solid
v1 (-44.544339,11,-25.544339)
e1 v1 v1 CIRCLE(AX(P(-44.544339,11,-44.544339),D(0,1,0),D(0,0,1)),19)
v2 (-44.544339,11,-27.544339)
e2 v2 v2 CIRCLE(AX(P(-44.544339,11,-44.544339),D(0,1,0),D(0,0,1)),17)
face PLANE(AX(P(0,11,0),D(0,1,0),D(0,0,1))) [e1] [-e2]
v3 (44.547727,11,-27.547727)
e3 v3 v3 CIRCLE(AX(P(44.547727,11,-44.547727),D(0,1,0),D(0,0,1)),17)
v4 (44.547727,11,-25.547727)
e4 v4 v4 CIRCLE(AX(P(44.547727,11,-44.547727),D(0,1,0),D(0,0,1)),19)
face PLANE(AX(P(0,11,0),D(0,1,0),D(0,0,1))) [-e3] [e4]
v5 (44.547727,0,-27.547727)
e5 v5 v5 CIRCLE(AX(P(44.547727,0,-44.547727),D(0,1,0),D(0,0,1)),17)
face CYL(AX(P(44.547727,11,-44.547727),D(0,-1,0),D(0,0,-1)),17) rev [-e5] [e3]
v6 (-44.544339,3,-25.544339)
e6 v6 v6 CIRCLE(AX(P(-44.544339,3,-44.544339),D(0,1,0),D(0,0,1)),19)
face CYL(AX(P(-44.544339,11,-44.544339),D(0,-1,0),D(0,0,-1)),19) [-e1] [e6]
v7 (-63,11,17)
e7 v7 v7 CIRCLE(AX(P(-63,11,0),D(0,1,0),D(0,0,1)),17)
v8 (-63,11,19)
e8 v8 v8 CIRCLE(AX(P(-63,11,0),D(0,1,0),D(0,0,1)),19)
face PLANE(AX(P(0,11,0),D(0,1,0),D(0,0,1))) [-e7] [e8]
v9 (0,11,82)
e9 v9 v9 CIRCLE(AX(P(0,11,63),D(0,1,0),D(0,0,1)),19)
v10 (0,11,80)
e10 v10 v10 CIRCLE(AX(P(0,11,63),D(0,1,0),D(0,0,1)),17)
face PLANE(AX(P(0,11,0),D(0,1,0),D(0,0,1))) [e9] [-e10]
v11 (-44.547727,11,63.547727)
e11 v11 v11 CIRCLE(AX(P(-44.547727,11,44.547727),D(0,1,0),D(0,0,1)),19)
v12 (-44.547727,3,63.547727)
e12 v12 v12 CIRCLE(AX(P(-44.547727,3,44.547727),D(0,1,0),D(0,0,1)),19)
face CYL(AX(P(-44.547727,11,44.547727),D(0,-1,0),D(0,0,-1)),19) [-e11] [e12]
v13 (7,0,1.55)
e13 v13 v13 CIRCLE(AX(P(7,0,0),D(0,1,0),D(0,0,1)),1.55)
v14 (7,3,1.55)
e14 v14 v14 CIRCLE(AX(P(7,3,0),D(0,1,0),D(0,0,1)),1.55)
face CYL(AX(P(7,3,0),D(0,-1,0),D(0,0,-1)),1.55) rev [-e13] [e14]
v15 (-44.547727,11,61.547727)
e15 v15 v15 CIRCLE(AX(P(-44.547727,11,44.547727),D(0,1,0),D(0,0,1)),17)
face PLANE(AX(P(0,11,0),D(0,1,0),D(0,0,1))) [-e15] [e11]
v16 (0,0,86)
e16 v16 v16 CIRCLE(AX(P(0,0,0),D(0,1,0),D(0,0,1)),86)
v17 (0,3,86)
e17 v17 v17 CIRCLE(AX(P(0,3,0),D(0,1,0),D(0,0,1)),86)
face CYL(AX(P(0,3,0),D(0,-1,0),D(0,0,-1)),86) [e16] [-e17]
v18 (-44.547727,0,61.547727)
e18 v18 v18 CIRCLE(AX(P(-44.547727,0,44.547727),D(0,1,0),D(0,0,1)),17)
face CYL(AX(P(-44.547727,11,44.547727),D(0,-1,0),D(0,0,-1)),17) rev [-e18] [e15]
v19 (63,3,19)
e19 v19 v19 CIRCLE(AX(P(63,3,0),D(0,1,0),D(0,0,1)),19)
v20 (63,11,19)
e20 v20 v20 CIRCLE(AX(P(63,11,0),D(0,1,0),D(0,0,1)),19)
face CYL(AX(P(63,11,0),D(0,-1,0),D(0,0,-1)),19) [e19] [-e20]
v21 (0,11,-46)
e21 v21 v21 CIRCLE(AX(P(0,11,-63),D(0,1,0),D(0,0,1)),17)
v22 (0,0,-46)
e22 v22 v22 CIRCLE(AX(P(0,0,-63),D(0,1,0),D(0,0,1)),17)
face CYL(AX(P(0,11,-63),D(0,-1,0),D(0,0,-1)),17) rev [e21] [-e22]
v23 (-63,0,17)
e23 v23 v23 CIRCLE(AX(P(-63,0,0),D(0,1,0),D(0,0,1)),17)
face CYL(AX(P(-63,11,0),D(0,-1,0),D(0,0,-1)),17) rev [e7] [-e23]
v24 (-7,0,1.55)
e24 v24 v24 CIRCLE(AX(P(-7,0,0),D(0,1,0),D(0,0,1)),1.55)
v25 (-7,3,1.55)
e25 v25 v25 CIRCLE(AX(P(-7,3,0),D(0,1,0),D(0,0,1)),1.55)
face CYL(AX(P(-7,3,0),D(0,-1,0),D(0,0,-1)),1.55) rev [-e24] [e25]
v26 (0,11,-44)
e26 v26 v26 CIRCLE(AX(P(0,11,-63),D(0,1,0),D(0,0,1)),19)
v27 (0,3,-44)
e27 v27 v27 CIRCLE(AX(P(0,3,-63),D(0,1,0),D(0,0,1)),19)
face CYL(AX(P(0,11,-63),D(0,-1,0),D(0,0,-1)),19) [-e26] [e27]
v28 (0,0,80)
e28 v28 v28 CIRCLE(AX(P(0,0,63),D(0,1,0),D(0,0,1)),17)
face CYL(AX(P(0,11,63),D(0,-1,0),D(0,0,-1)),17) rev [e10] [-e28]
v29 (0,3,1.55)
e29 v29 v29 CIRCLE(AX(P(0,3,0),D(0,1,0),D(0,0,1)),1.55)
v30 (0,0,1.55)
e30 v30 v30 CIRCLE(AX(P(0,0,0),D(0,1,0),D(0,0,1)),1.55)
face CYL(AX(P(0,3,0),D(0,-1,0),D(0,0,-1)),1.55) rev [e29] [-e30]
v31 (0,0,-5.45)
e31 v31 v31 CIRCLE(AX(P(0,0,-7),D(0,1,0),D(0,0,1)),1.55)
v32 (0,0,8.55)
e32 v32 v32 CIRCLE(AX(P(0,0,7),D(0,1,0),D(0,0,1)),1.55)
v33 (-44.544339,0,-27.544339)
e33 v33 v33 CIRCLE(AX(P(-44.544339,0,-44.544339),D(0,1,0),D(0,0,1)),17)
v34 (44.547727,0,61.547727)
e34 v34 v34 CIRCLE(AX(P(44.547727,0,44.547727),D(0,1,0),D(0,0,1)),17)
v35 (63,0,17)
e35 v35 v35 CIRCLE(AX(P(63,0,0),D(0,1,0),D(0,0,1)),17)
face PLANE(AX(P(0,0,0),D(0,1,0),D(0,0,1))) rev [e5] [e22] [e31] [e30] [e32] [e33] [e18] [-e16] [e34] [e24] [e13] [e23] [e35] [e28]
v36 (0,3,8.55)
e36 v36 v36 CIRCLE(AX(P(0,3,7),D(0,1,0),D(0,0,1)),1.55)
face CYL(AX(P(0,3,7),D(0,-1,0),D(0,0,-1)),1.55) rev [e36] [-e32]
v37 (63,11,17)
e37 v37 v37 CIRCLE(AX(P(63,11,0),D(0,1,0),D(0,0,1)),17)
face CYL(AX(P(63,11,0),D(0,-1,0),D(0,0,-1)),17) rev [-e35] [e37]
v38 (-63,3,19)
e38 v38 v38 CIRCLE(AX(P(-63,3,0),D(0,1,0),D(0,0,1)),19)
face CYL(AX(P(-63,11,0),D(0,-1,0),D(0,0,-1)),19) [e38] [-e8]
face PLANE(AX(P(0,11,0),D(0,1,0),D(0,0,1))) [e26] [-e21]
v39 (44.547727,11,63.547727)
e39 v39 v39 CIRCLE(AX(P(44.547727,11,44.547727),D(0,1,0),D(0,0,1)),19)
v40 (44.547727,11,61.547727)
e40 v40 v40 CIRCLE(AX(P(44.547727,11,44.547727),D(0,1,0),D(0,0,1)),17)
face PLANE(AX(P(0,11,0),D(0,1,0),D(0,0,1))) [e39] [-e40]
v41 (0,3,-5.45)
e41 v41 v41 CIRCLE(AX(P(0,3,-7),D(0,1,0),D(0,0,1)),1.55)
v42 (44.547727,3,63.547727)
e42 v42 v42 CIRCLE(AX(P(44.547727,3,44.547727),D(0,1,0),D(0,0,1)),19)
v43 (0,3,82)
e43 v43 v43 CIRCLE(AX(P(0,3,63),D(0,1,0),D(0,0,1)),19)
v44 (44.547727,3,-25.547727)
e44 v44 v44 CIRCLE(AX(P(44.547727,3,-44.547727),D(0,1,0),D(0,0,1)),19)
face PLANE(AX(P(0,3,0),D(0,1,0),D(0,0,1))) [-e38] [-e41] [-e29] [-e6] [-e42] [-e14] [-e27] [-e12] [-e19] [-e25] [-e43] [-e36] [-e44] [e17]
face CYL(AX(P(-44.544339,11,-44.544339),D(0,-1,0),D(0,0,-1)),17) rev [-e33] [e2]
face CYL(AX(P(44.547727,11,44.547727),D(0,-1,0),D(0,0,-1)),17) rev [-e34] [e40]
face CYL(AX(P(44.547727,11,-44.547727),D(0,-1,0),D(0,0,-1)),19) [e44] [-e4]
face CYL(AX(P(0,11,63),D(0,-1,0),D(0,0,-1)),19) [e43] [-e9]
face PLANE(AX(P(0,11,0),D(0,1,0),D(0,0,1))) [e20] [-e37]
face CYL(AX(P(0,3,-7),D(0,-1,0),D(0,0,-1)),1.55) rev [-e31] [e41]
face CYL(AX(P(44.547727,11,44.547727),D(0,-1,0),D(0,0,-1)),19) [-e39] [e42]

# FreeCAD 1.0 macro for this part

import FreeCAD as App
import Part
import Sketcher

V = App.Vector

doc = App.newDocument("Part")
params = doc.addObject("Spreadsheet::Sheet", "Params")
for row, (alias, value) in enumerate([
    ("sketch1_diameter", "38 mm"),
    ("sketch1_diameter2", "34 mm"),
    ("pad1_length", "11 mm"),
    ("sketch2_diameter", "38 mm"),
    ("sketch2_diameter2", "34 mm"),
    ("pad2_length", "11 mm"),
    ("sketch3_diameter", "38 mm"),
    ("sketch3_diameter2", "34 mm"),
    ("pad3_length", "11 mm"),
    ("sketch4_diameter", "38 mm"),
    ("sketch4_diameter2", "34 mm"),
    ("pad4_length", "11 mm"),
    ("sketch5_diameter", "38 mm"),
    ("sketch5_diameter2", "34 mm"),
    ("pad5_length", "11 mm"),
    ("sketch6_diameter", "38 mm"),
    ("sketch6_diameter2", "34 mm"),
    ("pad6_length", "11 mm"),
    ("sketch7_diameter", "38 mm"),
    ("sketch7_diameter2", "34 mm"),
    ("pad7_length", "11 mm"),
    ("sketch8_diameter", "38 mm"),
    ("sketch8_diameter2", "34 mm"),
    ("pad8_length", "11 mm"),
    ("sketch9_diameter", "172 mm"),
    ("sketch9_diameter2", "38 mm"),
    ("sketch9_diameter3", "3.1 mm"),
    ("pad9_length", "3 mm"),
], start=1):
    params.set(f"A{row}", alias)
    params.set(f"B{row}", "=" + value)
    params.setAlias(f"B{row}", alias)

body = doc.addObject("PartDesign::Body", "Body")

# Sketch on XZ plane
sketch1 = body.newObject("Sketcher::SketchObject", "Sketch")
sketch1.AttachmentSupport = (doc.getObject("XZ_Plane"), [""])
sketch1.MapMode = "FlatFace"
sketch1.addGeometry(Part.Circle(V(-63, 0, 0), V(0, 0, 1), 19), False)
sketch1.addGeometry(Part.Circle(V(-63, 0, 0), V(0, 0, 1), 17), False)
sketch1.addConstraint(Sketcher.Constraint("Coincident", 1, 3, 0, 3))
sketch1.addConstraint(Sketcher.Constraint("PointOnObject", 0, 3, -1))
sketch1.addConstraint(Sketcher.Constraint("Diameter", 0, 38.0))
sketch1.addConstraint(Sketcher.Constraint("Diameter", 1, 34.0))
sketch1.addConstraint(Sketcher.Constraint("DistanceX", 0, 3, -1, 1, 63.0))
sketch1.setExpression("Constraints[2]", "Params.sketch1_diameter")
sketch1.setExpression("Constraints[3]", "Params.sketch1_diameter2")
pad1 = body.newObject("PartDesign::Pad", "Pad")
pad1.Profile = sketch1
pad1.setExpression("Length", "Params.pad1_length")
pad1.Reversed = True
body2 = doc.addObject("PartDesign::Body", "Body001")

# Sketch on XZ plane
sketch2 = body2.newObject("Sketcher::SketchObject", "Sketch001")
sketch2.AttachmentSupport = (doc.getObject("XZ_Plane001"), [""])
sketch2.MapMode = "FlatFace"
sketch2.addGeometry(Part.Circle(V(-44.547727, 44.547727, 0), V(0, 0, 1), 19), False)
sketch2.addGeometry(Part.Circle(V(-44.547727, 44.547727, 0), V(0, 0, 1), 17), False)
sketch2.addConstraint(Sketcher.Constraint("Coincident", 1, 3, 0, 3))
sketch2.addConstraint(Sketcher.Constraint("Diameter", 0, 38.0))
sketch2.addConstraint(Sketcher.Constraint("Diameter", 1, 34.0))
sketch2.addConstraint(Sketcher.Constraint("DistanceX", 0, 3, -1, 1, 44.547727))
sketch2.addConstraint(Sketcher.Constraint("DistanceY", -1, 1, 0, 3, 44.547727))
sketch2.setExpression("Constraints[1]", "Params.sketch2_diameter")
sketch2.setExpression("Constraints[2]", "Params.sketch2_diameter2")
pad2 = body2.newObject("PartDesign::Pad", "Pad001")
pad2.Profile = sketch2
pad2.setExpression("Length", "Params.pad2_length")
pad2.Reversed = True
body3 = doc.addObject("PartDesign::Body", "Body002")

# Sketch on XZ plane
sketch3 = body3.newObject("Sketcher::SketchObject", "Sketch002")
sketch3.AttachmentSupport = (doc.getObject("XZ_Plane002"), [""])
sketch3.MapMode = "FlatFace"
sketch3.addGeometry(Part.Circle(V(0, 63, 0), V(0, 0, 1), 19), False)
sketch3.addGeometry(Part.Circle(V(0, 63, 0), V(0, 0, 1), 17), False)
sketch3.addConstraint(Sketcher.Constraint("Coincident", 1, 3, 0, 3))
sketch3.addConstraint(Sketcher.Constraint("PointOnObject", 0, 3, -2))
sketch3.addConstraint(Sketcher.Constraint("Diameter", 0, 38.0))
sketch3.addConstraint(Sketcher.Constraint("Diameter", 1, 34.0))
sketch3.addConstraint(Sketcher.Constraint("DistanceY", -1, 1, 0, 3, 63.0))
sketch3.setExpression("Constraints[2]", "Params.sketch3_diameter")
sketch3.setExpression("Constraints[3]", "Params.sketch3_diameter2")
pad3 = body3.newObject("PartDesign::Pad", "Pad002")
pad3.Profile = sketch3
pad3.setExpression("Length", "Params.pad3_length")
pad3.Reversed = True
body4 = doc.addObject("PartDesign::Body", "Body003")

# Sketch on XZ plane
sketch4 = body4.newObject("Sketcher::SketchObject", "Sketch003")
sketch4.AttachmentSupport = (doc.getObject("XZ_Plane003"), [""])
sketch4.MapMode = "FlatFace"
sketch4.addGeometry(Part.Circle(V(44.547727, 44.547727, 0), V(0, 0, 1), 19), False)
sketch4.addGeometry(Part.Circle(V(44.547727, 44.547727, 0), V(0, 0, 1), 17), False)
sketch4.addConstraint(Sketcher.Constraint("Coincident", 1, 3, 0, 3))
sketch4.addConstraint(Sketcher.Constraint("Diameter", 0, 38.0))
sketch4.addConstraint(Sketcher.Constraint("Diameter", 1, 34.0))
sketch4.addConstraint(Sketcher.Constraint("DistanceX", -1, 1, 0, 3, 44.547727))
sketch4.addConstraint(Sketcher.Constraint("DistanceY", -1, 1, 0, 3, 44.547727))
sketch4.setExpression("Constraints[1]", "Params.sketch4_diameter")
sketch4.setExpression("Constraints[2]", "Params.sketch4_diameter2")
pad4 = body4.newObject("PartDesign::Pad", "Pad003")
pad4.Profile = sketch4
pad4.setExpression("Length", "Params.pad4_length")
pad4.Reversed = True
body5 = doc.addObject("PartDesign::Body", "Body004")

# Sketch on XZ plane
sketch5 = body5.newObject("Sketcher::SketchObject", "Sketch004")
sketch5.AttachmentSupport = (doc.getObject("XZ_Plane004"), [""])
sketch5.MapMode = "FlatFace"
sketch5.addGeometry(Part.Circle(V(63, 0, 0), V(0, 0, 1), 19), False)
sketch5.addGeometry(Part.Circle(V(63, 0, 0), V(0, 0, 1), 17), False)
sketch5.addConstraint(Sketcher.Constraint("Coincident", 1, 3, 0, 3))
sketch5.addConstraint(Sketcher.Constraint("PointOnObject", 0, 3, -1))
sketch5.addConstraint(Sketcher.Constraint("Diameter", 0, 38.0))
sketch5.addConstraint(Sketcher.Constraint("Diameter", 1, 34.0))
sketch5.addConstraint(Sketcher.Constraint("DistanceX", -1, 1, 0, 3, 63.0))
sketch5.setExpression("Constraints[2]", "Params.sketch5_diameter")
sketch5.setExpression("Constraints[3]", "Params.sketch5_diameter2")
pad5 = body5.newObject("PartDesign::Pad", "Pad004")
pad5.Profile = sketch5
pad5.setExpression("Length", "Params.pad5_length")
pad5.Reversed = True
body6 = doc.addObject("PartDesign::Body", "Body005")

# Sketch on XZ plane
sketch6 = body6.newObject("Sketcher::SketchObject", "Sketch005")
sketch6.AttachmentSupport = (doc.getObject("XZ_Plane005"), [""])
sketch6.MapMode = "FlatFace"
sketch6.addGeometry(Part.Circle(V(0, -63, 0), V(0, 0, 1), 19), False)
sketch6.addGeometry(Part.Circle(V(0, -63, 0), V(0, 0, 1), 17), False)
sketch6.addConstraint(Sketcher.Constraint("Coincident", 1, 3, 0, 3))
sketch6.addConstraint(Sketcher.Constraint("PointOnObject", 0, 3, -2))
sketch6.addConstraint(Sketcher.Constraint("Diameter", 0, 38.0))
sketch6.addConstraint(Sketcher.Constraint("Diameter", 1, 34.0))
sketch6.addConstraint(Sketcher.Constraint("DistanceY", 0, 3, -1, 1, 63.0))
sketch6.setExpression("Constraints[2]", "Params.sketch6_diameter")
sketch6.setExpression("Constraints[3]", "Params.sketch6_diameter2")
pad6 = body6.newObject("PartDesign::Pad", "Pad005")
pad6.Profile = sketch6
pad6.setExpression("Length", "Params.pad6_length")
pad6.Reversed = True
body7 = doc.addObject("PartDesign::Body", "Body006")

# Sketch on XZ plane
sketch7 = body7.newObject("Sketcher::SketchObject", "Sketch006")
sketch7.AttachmentSupport = (doc.getObject("XZ_Plane006"), [""])
sketch7.MapMode = "FlatFace"
sketch7.addGeometry(Part.Circle(V(44.547727, -44.547727, 0), V(0, 0, 1), 19), False)
sketch7.addGeometry(Part.Circle(V(44.547727, -44.547727, 0), V(0, 0, 1), 17), False)
sketch7.addConstraint(Sketcher.Constraint("Coincident", 1, 3, 0, 3))
sketch7.addConstraint(Sketcher.Constraint("Diameter", 0, 38.0))
sketch7.addConstraint(Sketcher.Constraint("Diameter", 1, 34.0))
sketch7.addConstraint(Sketcher.Constraint("DistanceX", -1, 1, 0, 3, 44.547727))
sketch7.addConstraint(Sketcher.Constraint("DistanceY", 0, 3, -1, 1, 44.547727))
sketch7.setExpression("Constraints[1]", "Params.sketch7_diameter")
sketch7.setExpression("Constraints[2]", "Params.sketch7_diameter2")
pad7 = body7.newObject("PartDesign::Pad", "Pad006")
pad7.Profile = sketch7
pad7.setExpression("Length", "Params.pad7_length")
pad7.Reversed = True
body8 = doc.addObject("PartDesign::Body", "Body007")

# Sketch on XZ plane
sketch8 = body8.newObject("Sketcher::SketchObject", "Sketch007")
sketch8.AttachmentSupport = (doc.getObject("XZ_Plane007"), [""])
sketch8.MapMode = "FlatFace"
sketch8.addGeometry(Part.Circle(V(-44.544339, -44.544339, 0), V(0, 0, 1), 19), False)
sketch8.addGeometry(Part.Circle(V(-44.544339, -44.544339, 0), V(0, 0, 1), 17), False)
sketch8.addConstraint(Sketcher.Constraint("Coincident", 1, 3, 0, 3))
sketch8.addConstraint(Sketcher.Constraint("Diameter", 0, 38.0))
sketch8.addConstraint(Sketcher.Constraint("Diameter", 1, 34.0))
sketch8.addConstraint(Sketcher.Constraint("DistanceX", 0, 3, -1, 1, 44.544339))
sketch8.addConstraint(Sketcher.Constraint("DistanceY", 0, 3, -1, 1, 44.544339))
sketch8.setExpression("Constraints[1]", "Params.sketch8_diameter")
sketch8.setExpression("Constraints[2]", "Params.sketch8_diameter2")
pad8 = body8.newObject("PartDesign::Pad", "Pad007")
pad8.Profile = sketch8
pad8.setExpression("Length", "Params.pad8_length")
pad8.Reversed = True
body.AllowCompound = True
doc.recompute()

boolean = body.newObject("PartDesign::Boolean", "Boolean")
boolean.Type = "Fuse"
boolean.addObjects([body2])
doc.recompute()

boolean2 = body.newObject("PartDesign::Boolean", "Boolean001")
boolean2.Type = "Fuse"
boolean2.addObjects([body3])
doc.recompute()

boolean3 = body.newObject("PartDesign::Boolean", "Boolean002")
boolean3.Type = "Fuse"
boolean3.addObjects([body4])
doc.recompute()

boolean4 = body.newObject("PartDesign::Boolean", "Boolean003")
boolean4.Type = "Fuse"
boolean4.addObjects([body5])
doc.recompute()

boolean5 = body.newObject("PartDesign::Boolean", "Boolean004")
boolean5.Type = "Fuse"
boolean5.addObjects([body6])
doc.recompute()

boolean6 = body.newObject("PartDesign::Boolean", "Boolean005")
boolean6.Type = "Fuse"
boolean6.addObjects([body7])
doc.recompute()

boolean7 = body.newObject("PartDesign::Boolean", "Boolean006")
boolean7.Type = "Fuse"
boolean7.addObjects([body8])

# Sketch on XZ plane
sketch9 = body.newObject("Sketcher::SketchObject", "Sketch008")
sketch9.AttachmentSupport = (doc.getObject("XZ_Plane"), [""])
sketch9.MapMode = "FlatFace"
sketch9.addGeometry(Part.Circle(V(0, 0, 0), V(0, 0, 1), 86), False)
sketch9.addGeometry(Part.Circle(V(-44.544339, -44.544339, 0), V(0, 0, 1), 19), False)
sketch9.addGeometry(Part.Circle(V(0, -63, 0), V(0, 0, 1), 19), False)
sketch9.addGeometry(Part.Circle(V(-63, 0, 0), V(0, 0, 1), 19), False)
sketch9.addGeometry(Part.Circle(V(-44.547727, 44.547727, 0), V(0, 0, 1), 19), False)
sketch9.addGeometry(Part.Circle(V(-7, 0, 0), V(0, 0, 1), 1.55), False)
sketch9.addGeometry(Part.Circle(V(0, -7, 0), V(0, 0, 1), 1.55), False)
sketch9.addGeometry(Part.Circle(V(44.547727, -44.547727, 0), V(0, 0, 1), 19), False)
sketch9.addGeometry(Part.Circle(V(63, 0, 0), V(0, 0, 1), 19), False)
sketch9.addGeometry(Part.Circle(V(0, 0, 0), V(0, 0, 1), 1.55), False)
sketch9.addGeometry(Part.Circle(V(0, 7, 0), V(0, 0, 1), 1.55), False)
sketch9.addGeometry(Part.Circle(V(7, 0, 0), V(0, 0, 1), 1.55), False)
sketch9.addGeometry(Part.Circle(V(0, 63, 0), V(0, 0, 1), 19), False)
sketch9.addGeometry(Part.Circle(V(44.547727, 44.547727, 0), V(0, 0, 1), 19), False)
sketch9.addConstraint(Sketcher.Constraint("Coincident", 0, 3, -1, 1))
sketch9.addConstraint(Sketcher.Constraint("Coincident", 9, 3, -1, 1))
sketch9.addConstraint(Sketcher.Constraint("Equal", 1, 2))
sketch9.addConstraint(Sketcher.Constraint("Equal", 2, 3))
sketch9.addConstraint(Sketcher.Constraint("Equal", 3, 4))
sketch9.addConstraint(Sketcher.Constraint("Equal", 5, 6))
sketch9.addConstraint(Sketcher.Constraint("Equal", 4, 7))
sketch9.addConstraint(Sketcher.Constraint("Equal", 7, 8))
sketch9.addConstraint(Sketcher.Constraint("Equal", 6, 9))
sketch9.addConstraint(Sketcher.Constraint("Equal", 9, 10))
sketch9.addConstraint(Sketcher.Constraint("Equal", 10, 11))
sketch9.addConstraint(Sketcher.Constraint("Equal", 8, 12))
sketch9.addConstraint(Sketcher.Constraint("Equal", 12, 13))
sketch9.addConstraint(Sketcher.Constraint("Symmetric", 4, 3, 7, 3, -1, 1))
sketch9.addConstraint(Sketcher.Constraint("Symmetric", 3, 3, 8, 3, -1, 1))
sketch9.addConstraint(Sketcher.Constraint("Symmetric", 6, 3, 10, 3, -1, 1))
sketch9.addConstraint(Sketcher.Constraint("Symmetric", 5, 3, 11, 3, -1, 1))
sketch9.addConstraint(Sketcher.Constraint("Symmetric", 2, 3, 12, 3, -1, 1))
sketch9.addConstraint(Sketcher.Constraint("Symmetric", 4, 3, 13, 3, -2))
sketch9.addConstraint(Sketcher.Constraint("PointOnObject", 2, 3, -2))
sketch9.addConstraint(Sketcher.Constraint("PointOnObject", 3, 3, -1))
sketch9.addConstraint(Sketcher.Constraint("PointOnObject", 5, 3, -1))
sketch9.addConstraint(Sketcher.Constraint("PointOnObject", 6, 3, -2))
sketch9.addConstraint(Sketcher.Constraint("Diameter", 0, 172.0))
sketch9.addConstraint(Sketcher.Constraint("Diameter", 1, 38.0))
sketch9.addConstraint(Sketcher.Constraint("Diameter", 5, 3.1))
sketch9.addConstraint(Sketcher.Constraint("DistanceY", 2, 3, -1, 1, 63.0))
sketch9.addConstraint(Sketcher.Constraint("DistanceX", 3, 3, -1, 1, 63.0))
sketch9.addConstraint(Sketcher.Constraint("DistanceX", 5, 3, -1, 1, 7.0))
sketch9.addConstraint(Sketcher.Constraint("DistanceY", 6, 3, -1, 1, 7.0))
sketch9.addConstraint(Sketcher.Constraint("DistanceX", 1, 3, -1, 1, 44.544339))
sketch9.addConstraint(Sketcher.Constraint("DistanceY", 1, 3, -1, 1, 44.544339))
sketch9.addConstraint(Sketcher.Constraint("DistanceX", 4, 3, -1, 1, 44.547727))
sketch9.addConstraint(Sketcher.Constraint("DistanceY", -1, 1, 4, 3, 44.547727))
sketch9.setExpression("Constraints[23]", "Params.sketch9_diameter")
sketch9.setExpression("Constraints[24]", "Params.sketch9_diameter2")
sketch9.setExpression("Constraints[25]", "Params.sketch9_diameter3")
pad9 = body.newObject("PartDesign::Pad", "Pad008")
pad9.Profile = sketch9
pad9.setExpression("Length", "Params.pad9_length")
pad9.Reversed = True

doc.recompute()
